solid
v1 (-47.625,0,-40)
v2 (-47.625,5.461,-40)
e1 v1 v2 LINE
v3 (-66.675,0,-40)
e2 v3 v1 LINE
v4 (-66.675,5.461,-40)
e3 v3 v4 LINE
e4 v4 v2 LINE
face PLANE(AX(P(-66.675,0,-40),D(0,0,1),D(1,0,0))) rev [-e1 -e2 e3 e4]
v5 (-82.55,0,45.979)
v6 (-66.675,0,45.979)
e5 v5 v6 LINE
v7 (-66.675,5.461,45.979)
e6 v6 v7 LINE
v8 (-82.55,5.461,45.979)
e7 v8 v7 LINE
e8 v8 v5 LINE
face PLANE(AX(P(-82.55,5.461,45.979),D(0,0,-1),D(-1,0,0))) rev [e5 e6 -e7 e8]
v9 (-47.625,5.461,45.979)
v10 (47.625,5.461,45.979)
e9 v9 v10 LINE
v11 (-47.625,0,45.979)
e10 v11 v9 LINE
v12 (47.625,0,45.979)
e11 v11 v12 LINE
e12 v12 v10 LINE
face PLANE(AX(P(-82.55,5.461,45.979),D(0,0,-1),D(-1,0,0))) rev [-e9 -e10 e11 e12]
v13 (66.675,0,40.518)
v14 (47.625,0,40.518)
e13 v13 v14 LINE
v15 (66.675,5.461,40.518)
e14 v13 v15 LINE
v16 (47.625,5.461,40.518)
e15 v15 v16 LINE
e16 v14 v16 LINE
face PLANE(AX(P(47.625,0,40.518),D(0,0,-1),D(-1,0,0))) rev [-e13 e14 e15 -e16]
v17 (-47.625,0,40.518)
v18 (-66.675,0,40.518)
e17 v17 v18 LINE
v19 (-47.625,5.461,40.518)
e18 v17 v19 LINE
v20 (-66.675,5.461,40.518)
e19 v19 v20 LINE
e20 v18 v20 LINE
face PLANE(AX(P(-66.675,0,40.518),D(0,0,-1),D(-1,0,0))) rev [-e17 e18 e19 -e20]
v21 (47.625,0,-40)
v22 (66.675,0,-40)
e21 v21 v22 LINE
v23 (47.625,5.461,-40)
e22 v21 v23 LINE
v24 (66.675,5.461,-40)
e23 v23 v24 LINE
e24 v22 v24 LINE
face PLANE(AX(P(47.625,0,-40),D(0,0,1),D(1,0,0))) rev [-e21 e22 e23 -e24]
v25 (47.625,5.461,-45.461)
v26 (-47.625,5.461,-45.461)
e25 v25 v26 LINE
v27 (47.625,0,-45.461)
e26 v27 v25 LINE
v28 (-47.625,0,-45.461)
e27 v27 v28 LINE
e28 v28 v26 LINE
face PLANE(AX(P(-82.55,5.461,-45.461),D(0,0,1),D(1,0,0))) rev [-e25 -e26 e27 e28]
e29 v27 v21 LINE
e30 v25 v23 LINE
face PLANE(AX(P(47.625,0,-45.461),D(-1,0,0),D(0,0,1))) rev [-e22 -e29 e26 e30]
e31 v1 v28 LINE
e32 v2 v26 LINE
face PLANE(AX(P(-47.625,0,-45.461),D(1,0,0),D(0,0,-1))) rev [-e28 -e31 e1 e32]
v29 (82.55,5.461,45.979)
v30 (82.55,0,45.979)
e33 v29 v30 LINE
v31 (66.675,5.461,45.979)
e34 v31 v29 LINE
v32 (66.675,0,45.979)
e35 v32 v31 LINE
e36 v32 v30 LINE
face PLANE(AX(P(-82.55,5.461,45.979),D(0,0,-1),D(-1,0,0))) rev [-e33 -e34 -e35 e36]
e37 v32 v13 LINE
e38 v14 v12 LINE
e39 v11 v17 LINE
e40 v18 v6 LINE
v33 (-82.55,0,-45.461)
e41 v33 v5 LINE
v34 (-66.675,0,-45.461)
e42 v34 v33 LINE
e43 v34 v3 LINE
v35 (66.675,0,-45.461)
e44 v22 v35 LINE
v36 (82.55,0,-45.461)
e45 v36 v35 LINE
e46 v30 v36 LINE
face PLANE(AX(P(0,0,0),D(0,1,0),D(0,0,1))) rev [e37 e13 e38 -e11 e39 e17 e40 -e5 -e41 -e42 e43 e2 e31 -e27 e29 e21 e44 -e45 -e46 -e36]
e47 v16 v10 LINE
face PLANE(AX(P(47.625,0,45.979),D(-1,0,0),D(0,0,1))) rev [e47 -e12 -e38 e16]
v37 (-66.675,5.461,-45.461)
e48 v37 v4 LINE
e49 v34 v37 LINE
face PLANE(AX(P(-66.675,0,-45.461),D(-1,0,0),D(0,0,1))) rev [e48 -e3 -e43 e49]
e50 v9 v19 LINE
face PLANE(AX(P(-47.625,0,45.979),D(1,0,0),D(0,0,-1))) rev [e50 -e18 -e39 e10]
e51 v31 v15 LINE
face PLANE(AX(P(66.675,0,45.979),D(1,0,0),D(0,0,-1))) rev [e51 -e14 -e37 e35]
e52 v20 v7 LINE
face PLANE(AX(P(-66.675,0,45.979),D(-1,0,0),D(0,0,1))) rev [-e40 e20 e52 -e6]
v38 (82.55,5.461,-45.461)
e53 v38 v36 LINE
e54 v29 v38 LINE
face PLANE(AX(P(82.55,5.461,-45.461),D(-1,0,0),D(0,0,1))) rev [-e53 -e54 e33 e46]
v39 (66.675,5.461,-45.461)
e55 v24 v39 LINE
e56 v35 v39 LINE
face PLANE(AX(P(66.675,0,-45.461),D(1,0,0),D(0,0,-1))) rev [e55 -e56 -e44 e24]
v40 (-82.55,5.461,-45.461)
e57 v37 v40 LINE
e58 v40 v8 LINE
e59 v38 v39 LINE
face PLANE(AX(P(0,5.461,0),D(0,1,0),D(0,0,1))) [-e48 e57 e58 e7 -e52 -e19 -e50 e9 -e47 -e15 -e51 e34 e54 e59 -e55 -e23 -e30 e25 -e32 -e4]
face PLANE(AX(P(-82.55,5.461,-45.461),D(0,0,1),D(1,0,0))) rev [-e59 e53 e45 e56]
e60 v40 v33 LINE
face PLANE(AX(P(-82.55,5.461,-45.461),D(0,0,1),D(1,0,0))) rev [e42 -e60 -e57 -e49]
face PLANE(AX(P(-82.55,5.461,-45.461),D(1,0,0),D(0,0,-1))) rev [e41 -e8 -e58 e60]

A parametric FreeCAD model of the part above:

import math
import FreeCAD as App
import Part
import Sketcher

V = App.Vector
Q = App.Units.Quantity


def add_polygon(sketch, points):
    """Adds a closed chain of lines whose ends are joined by coincident constraints."""
    first, n = sketch.GeometryCount, len(points)
    for a, b in zip(points, points[1:] + points[:1]):
        sketch.addGeometry(Part.LineSegment(App.Vector(*a, 0), App.Vector(*b, 0)), False)
    for i in range(n):
        sketch.addConstraint(Sketcher.Constraint("Coincident", first + i, 2, first + (i + 1) % n, 1))

doc = App.newDocument("Part")
params = doc.addObject("Spreadsheet::Sheet", "Params")
for row, (alias, value) in enumerate([
    ("sketch1_width", "6.5 in"),
    ("sketch1_height", "3.6 in"),
    ("pad1_length", "0.215 in"),
    ("sketch2_width", "0.75 in"),
    ("sketch2_height", "0.215 in"),
    ("pad2_length", "0.215 in"),
], start=1):
    params.set(f"A{row}", alias)
    params.set(f"B{row}", "=" + value)
    params.setAlias(f"B{row}", alias)

body = doc.addObject("PartDesign::Body", "Body")

sketch1 = body.newObject("Sketcher::SketchObject", "Sketch")
sketch1.AttachmentSupport = (doc.getObject("XZ_Plane"), [""])
sketch1.MapMode = "FlatFace"
add_polygon(sketch1, [(-83, -45), (-83, 46), (83, 46), (83, -45)])
sketch1.addGeometry(Part.ArcOfCircle(Part.Circle(V(-48, -32, 0), V(0, 0, 1), 8), math.radians(180), math.radians(270)), False)
sketch1.addGeometry(Part.LineSegment(V(-48, -40, 0), V(48, -40, 0)), False)
sketch1.addGeometry(Part.ArcOfCircle(Part.Circle(V(48, -32, 0), V(0, 0, 1), 8), math.radians(-90), math.radians(0)), False)
sketch1.addGeometry(Part.LineSegment(V(55, -32, 0), V(55, 32, 0)), False)
sketch1.addGeometry(Part.ArcOfCircle(Part.Circle(V(48, 32, 0), V(0, 0, 1), 8), math.radians(0), math.radians(90)), False)
sketch1.addGeometry(Part.LineSegment(V(48, 40, 0), V(-48, 40, 0)), False)
sketch1.addGeometry(Part.ArcOfCircle(Part.Circle(V(-48, 32, 0), V(0, 0, 1), 8), math.radians(90), math.radians(180)), False)
sketch1.addGeometry(Part.LineSegment(V(-55, 32, 0), V(-55, -32, 0)), False)
sketch1.addConstraint(Sketcher.Constraint("Tangent", 4, 2, 5, 1))
sketch1.addConstraint(Sketcher.Constraint("Tangent", 5, 2, 6, 1))
sketch1.addConstraint(Sketcher.Constraint("Tangent", 6, 2, 7, 1))
sketch1.addConstraint(Sketcher.Constraint("Tangent", 7, 2, 8, 1))
sketch1.addConstraint(Sketcher.Constraint("Tangent", 8, 2, 9, 1))
sketch1.addConstraint(Sketcher.Constraint("Tangent", 9, 2, 10, 1))
sketch1.addConstraint(Sketcher.Constraint("Tangent", 10, 2, 11, 1))
sketch1.addConstraint(Sketcher.Constraint("Tangent", 11, 2, 4, 1))
sketch1.addConstraint(Sketcher.Constraint("Vertical", 0))
sketch1.addConstraint(Sketcher.Constraint("Horizontal", 1))
sketch1.addConstraint(Sketcher.Constraint("Vertical", 2))
sketch1.addConstraint(Sketcher.Constraint("Horizontal", 3))
sketch1.addConstraint(Sketcher.Constraint("Horizontal", 5))
sketch1.addConstraint(Sketcher.Constraint("Vertical", 7))
sketch1.addConstraint(Sketcher.Constraint("Horizontal", 9))
sketch1.addConstraint(Sketcher.Constraint("Vertical", 11))
sketch1.addConstraint(Sketcher.Constraint("Equal", 4, 6))
sketch1.addConstraint(Sketcher.Constraint("Equal", 6, 8))
sketch1.addConstraint(Sketcher.Constraint("Equal", 8, 10))
sketch1.addConstraint(Sketcher.Constraint("Symmetric", 4, 3, 8, 3, -1, 1))
sketch1.addConstraint(Sketcher.Constraint("DistanceX", 1, 1, 1, 2, Q("6.5 in")))
sketch1.addConstraint(Sketcher.Constraint("DistanceY", 0, 1, 0, 2, Q("3.6 in")))
sketch1.addConstraint(Sketcher.Constraint("DistanceX", 0, 2, -1, 1, Q("3.25 in")))
sketch1.addConstraint(Sketcher.Constraint("Radius", 4, 7.5))
sketch1.addConstraint(Sketcher.Constraint("DistanceY", 3, 2, 4, 2, Q("0.215 in")))
sketch1.addConstraint(Sketcher.Constraint("DistanceX", 5, 1, 5, 2, 95.0))
sketch1.addConstraint(Sketcher.Constraint("DistanceY", 7, 1, 7, 2, 65.0))
sketch1.setExpression("Constraints[24]", "Params.sketch1_width")
sketch1.setExpression("Constraints[25]", "Params.sketch1_height")
pad1 = body.newObject("PartDesign::Pad", "Pad")
pad1.Profile = sketch1
pad1.setExpression("Length", "Params.pad1_length")
pad1.Reversed = True

sketch2 = body.newObject("Sketcher::SketchObject", "Sketch001")
sketch2.AttachmentSupport = (doc.getObject("XZ_Plane"), [""])
sketch2.MapMode = "FlatFace"
sketch2.AttachmentOffset = App.Placement(V(0, 0, -0.215 * 25.4), App.Rotation())
add_polygon(sketch2, [(-67, -45), (-67, -40), (-48, -40), (-48, -45)])
add_polygon(sketch2, [(-67, 41), (-67, 46), (-48, 46), (-48, 41)])
add_polygon(sketch2, [(48, 41), (48, 46), (67, 46), (67, 41)])
add_polygon(sketch2, [(48, -45), (48, -40), (67, -40), (67, -45)])
sketch2.addConstraint(Sketcher.Constraint("Vertical", 0))
sketch2.addConstraint(Sketcher.Constraint("Horizontal", 1))
sketch2.addConstraint(Sketcher.Constraint("Vertical", 2))
sketch2.addConstraint(Sketcher.Constraint("Horizontal", 3))
sketch2.addConstraint(Sketcher.Constraint("Vertical", 4))
sketch2.addConstraint(Sketcher.Constraint("Horizontal", 5))
sketch2.addConstraint(Sketcher.Constraint("Vertical", 6))
sketch2.addConstraint(Sketcher.Constraint("Horizontal", 7))
sketch2.addConstraint(Sketcher.Constraint("Vertical", 8))
sketch2.addConstraint(Sketcher.Constraint("Horizontal", 9))
sketch2.addConstraint(Sketcher.Constraint("Vertical", 10))
sketch2.addConstraint(Sketcher.Constraint("Horizontal", 11))
sketch2.addConstraint(Sketcher.Constraint("Vertical", 12))
sketch2.addConstraint(Sketcher.Constraint("Horizontal", 13))
sketch2.addConstraint(Sketcher.Constraint("Vertical", 14))
sketch2.addConstraint(Sketcher.Constraint("Horizontal", 15))
sketch2.addConstraint(Sketcher.Constraint("Symmetric", 5, 2, 8, 2, -2))
sketch2.addConstraint(Sketcher.Constraint("Symmetric", 7, 2, 10, 2, -2))
sketch2.addConstraint(Sketcher.Constraint("Symmetric", 1, 2, 12, 2, -2))
sketch2.addConstraint(Sketcher.Constraint("Symmetric", 3, 2, 14, 2, -2))
sketch2.addConstraint(Sketcher.Constraint("Vertical", 3, 2, 4, 2))
sketch2.addConstraint(Sketcher.Constraint("Vertical", 2, 2, 5, 2))
sketch2.addConstraint(Sketcher.Constraint("Equal", 2, 4))
sketch2.addConstraint(Sketcher.Constraint("DistanceX", 1, 1, 1, 2, Q("0.75 in")))
sketch2.addConstraint(Sketcher.Constraint("DistanceY", 3, 2, 4, 2, Q("3.6 in")))
sketch2.addConstraint(Sketcher.Constraint("DistanceX", 4, 2, 8, 2, Q("4.5 in")))
sketch2.addConstraint(Sketcher.Constraint("DistanceY", 0, 1, 0, 2, Q("0.215 in")))
sketch2.addConstraint(Sketcher.Constraint("DistanceY", 0, 2, -1, 1, 40.0))
sketch2.setExpression("Constraints[39]", "Params.sketch2_width")
sketch2.setExpression("Constraints[42]", "Params.sketch2_height")
pocket1 = body.newObject("PartDesign::Pocket", "Pocket")
pocket1.Profile = sketch2
pocket1.Type = "ThroughAll"
pocket1.Reversed = True

sketch3 = body.newObject("Sketcher::SketchObject", "Sketch002")
sketch3.AttachmentSupport = (doc.getObject("XZ_Plane"), [""])
sketch3.MapMode = "FlatFace"
sketch3.addGeometry(Part.LineSegment(V(48, -40, 0), V(-48, -40, 0)), False)
sketch3.addGeometry(Part.ArcOfCircle(Part.Circle(V(-48, -32, 0), V(0, 0, 1), 8), math.radians(180), math.radians(270)), False)
sketch3.addGeometry(Part.LineSegment(V(-55, -32, 0), V(-55, 32, 0)), False)
sketch3.addGeometry(Part.ArcOfCircle(Part.Circle(V(-48, 32, 0), V(0, 0, 1), 8), math.radians(90), math.radians(180)), False)
sketch3.addGeometry(Part.LineSegment(V(-48, 40, 0), V(48, 40, 0)), False)
sketch3.addGeometry(Part.ArcOfCircle(Part.Circle(V(48, 32, 0), V(0, 0, 1), 8), math.radians(0), math.radians(90)), False)
sketch3.addGeometry(Part.LineSegment(V(55, 32, 0), V(55, -32, 0)), False)
sketch3.addGeometry(Part.ArcOfCircle(Part.Circle(V(48, -32, 0), V(0, 0, 1), 8), math.radians(-90), math.radians(0)), False)
sketch3.addConstraint(Sketcher.Constraint("Tangent", 0, 2, 1, 2))
sketch3.addConstraint(Sketcher.Constraint("Tangent", 1, 1, 2, 1))
sketch3.addConstraint(Sketcher.Constraint("Tangent", 2, 2, 3, 2))
sketch3.addConstraint(Sketcher.Constraint("Tangent", 3, 1, 4, 1))
sketch3.addConstraint(Sketcher.Constraint("Tangent", 4, 2, 5, 2))
sketch3.addConstraint(Sketcher.Constraint("Tangent", 5, 1, 6, 1))
sketch3.addConstraint(Sketcher.Constraint("Tangent", 6, 2, 7, 2))
sketch3.addConstraint(Sketcher.Constraint("Tangent", 7, 1, 0, 1))
sketch3.addConstraint(Sketcher.Constraint("Horizontal", 0))
sketch3.addConstraint(Sketcher.Constraint("Vertical", 2))
sketch3.addConstraint(Sketcher.Constraint("Horizontal", 4))
sketch3.addConstraint(Sketcher.Constraint("Vertical", 6))
sketch3.addConstraint(Sketcher.Constraint("Equal", 1, 3))
sketch3.addConstraint(Sketcher.Constraint("Equal", 3, 5))
sketch3.addConstraint(Sketcher.Constraint("Equal", 5, 7))
sketch3.addConstraint(Sketcher.Constraint("Symmetric", 1, 3, 5, 3, -1, 1))
sketch3.addConstraint(Sketcher.Constraint("Radius", 1, 7.5))
sketch3.addConstraint(Sketcher.Constraint("DistanceX", 0, 2, 0, 1, 95.0))
sketch3.addConstraint(Sketcher.Constraint("DistanceY", 2, 1, 2, 2, 65.0))
pad2 = body.newObject("PartDesign::Pad", "Pad001")
pad2.Profile = sketch3
pad2.setExpression("Length", "Params.pad2_length")
pad2.Reversed = True

doc.recompute()
